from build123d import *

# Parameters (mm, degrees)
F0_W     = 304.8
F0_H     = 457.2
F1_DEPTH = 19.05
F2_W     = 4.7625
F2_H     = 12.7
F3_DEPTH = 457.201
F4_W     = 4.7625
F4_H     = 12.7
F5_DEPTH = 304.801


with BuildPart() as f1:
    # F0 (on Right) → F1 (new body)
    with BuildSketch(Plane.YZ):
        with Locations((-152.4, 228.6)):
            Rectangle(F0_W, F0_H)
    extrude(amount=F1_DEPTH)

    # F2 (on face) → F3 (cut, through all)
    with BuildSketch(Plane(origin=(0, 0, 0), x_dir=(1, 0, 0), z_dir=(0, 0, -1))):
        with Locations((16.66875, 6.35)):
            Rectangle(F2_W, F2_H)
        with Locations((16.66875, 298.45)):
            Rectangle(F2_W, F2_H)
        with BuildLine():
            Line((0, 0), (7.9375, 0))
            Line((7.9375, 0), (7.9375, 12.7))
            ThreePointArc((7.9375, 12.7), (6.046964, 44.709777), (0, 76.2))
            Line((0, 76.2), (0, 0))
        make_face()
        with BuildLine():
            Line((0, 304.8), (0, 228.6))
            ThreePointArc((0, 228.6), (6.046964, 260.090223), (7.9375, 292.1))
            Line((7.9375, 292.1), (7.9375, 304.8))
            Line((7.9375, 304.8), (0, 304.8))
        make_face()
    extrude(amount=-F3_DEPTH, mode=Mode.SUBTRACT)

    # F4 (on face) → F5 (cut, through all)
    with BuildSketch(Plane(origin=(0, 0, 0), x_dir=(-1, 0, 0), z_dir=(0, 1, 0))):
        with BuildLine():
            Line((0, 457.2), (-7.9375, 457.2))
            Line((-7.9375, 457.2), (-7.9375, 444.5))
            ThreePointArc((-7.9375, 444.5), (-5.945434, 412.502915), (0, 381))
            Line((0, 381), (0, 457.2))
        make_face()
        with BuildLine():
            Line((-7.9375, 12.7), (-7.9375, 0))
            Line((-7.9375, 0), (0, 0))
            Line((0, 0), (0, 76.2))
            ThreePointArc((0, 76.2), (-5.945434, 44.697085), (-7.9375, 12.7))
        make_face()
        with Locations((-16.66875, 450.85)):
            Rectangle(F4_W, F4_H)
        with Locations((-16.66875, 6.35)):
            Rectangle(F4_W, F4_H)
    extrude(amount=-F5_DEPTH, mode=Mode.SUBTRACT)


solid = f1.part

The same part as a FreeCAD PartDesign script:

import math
import FreeCAD as App
import Part
import Sketcher
from FreeCAD import Vector
Q = App.Units.Quantity

doc = App.newDocument("Part")
params = doc.addObject("Spreadsheet::Sheet", "Params")
for row, (alias, value) in enumerate([
    ("sketch1_width", "12 in"),
    ("sketch1_height", "18 in"),
    ("pad1_length", "0.75 in"),
    ("sketch2_height", "3 in"),
    ("sketch2_height2", "0.5 in"),
    ("sketch2_width", "0.1875 in"),
    ("sketch2_width2", "0.3125 in"),
    ("sketch3_height", "3 in"),
    ("sketch3_height2", "3 in"),
    ("sketch3_height3", "0.5 in"),
    ("sketch3_height4", "0.5 in"),
    ("sketch3_height5", "0.5 in"),
], start=1):
    params.set(f"A{row}", alias)
    params.set(f"B{row}", "=" + value)
    params.setAlias(f"B{row}", alias)

body = doc.addObject("PartDesign::Body", "Body")

# Sketch on YZ plane
sketch1 = body.newObject("Sketcher::SketchObject", "Sketch")
sketch1.AttachmentSupport = (doc.getObject("YZ_Plane"), [""])
sketch1.MapMode = "FlatFace"
sketch1.addGeometry([
    Part.LineSegment(Vector(-305, 457, 0), Vector(-305, 0, 0)),
    Part.LineSegment(Vector(-305, 0, 0), Vector(0, 0, 0)),
    Part.LineSegment(Vector(0, 0, 0), Vector(0, 457, 0)),
    Part.LineSegment(Vector(0, 457, 0), Vector(-305, 457, 0)),
], False)
sketch1.addConstraint([
    Sketcher.Constraint("Coincident", 0, 2, 1, 1),
    Sketcher.Constraint("Coincident", 1, 2, 2, 1),
    Sketcher.Constraint("Coincident", 2, 2, 3, 1),
    Sketcher.Constraint("Coincident", 3, 2, 0, 1),
    Sketcher.Constraint("Vertical", 0),
    Sketcher.Constraint("Horizontal", 1),
    Sketcher.Constraint("Vertical", 2),
    Sketcher.Constraint("Horizontal", 3),
    Sketcher.Constraint("Coincident", 1, 2, -1, 1),
    Sketcher.Constraint("DistanceX", 1, 1, 1, 2, Q("12 in")),
    Sketcher.Constraint("DistanceY", 0, 2, 0, 1, Q("18 in")),
])
sketch1.setExpression("Constraints[9]", "Params.sketch1_width")
sketch1.setExpression("Constraints[10]", "Params.sketch1_height")
pad1 = body.newObject("PartDesign::Pad", "Pad")
pad1.Profile = sketch1
pad1.setExpression("Length", "Params.pad1_length")

# Sketch on XY plane
sketch2 = body.newObject("Sketcher::SketchObject", "Sketch001")
sketch2.AttachmentSupport = (doc.getObject("XY_Plane"), [""])
sketch2.MapMode = "FlatFace"
sketch2.addGeometry([
    Part.LineSegment(Vector(14.3, -12.7, 0), Vector(14.3, 0, 0)),  # 0
    Part.LineSegment(Vector(14.3, 0, 0), Vector(19.1, 0, 0)),  # 1
    Part.LineSegment(Vector(19.1, 0, 0), Vector(19.1, -12.7, 0)),  # 2
    Part.LineSegment(Vector(19.1, -12.7, 0), Vector(14.3, -12.7, 0)),  # 3
    Part.LineSegment(Vector(14.3, -304.8, 0), Vector(14.3, -292.1, 0)),  # 4
    Part.LineSegment(Vector(14.3, -292.1, 0), Vector(19.1, -292.1, 0)),  # 5
    Part.LineSegment(Vector(19.1, -292.1, 0), Vector(19.1, -304.8, 0)),  # 6
    Part.LineSegment(Vector(19.1, -304.8, 0), Vector(14.3, -304.8, 0)),  # 7
    Part.LineSegment(Vector(0, 0, 0), Vector(7.9, 0, 0)),  # 8
    Part.LineSegment(Vector(7.9, 0, 0), Vector(7.9, -12.7, 0)),  # 9
    Part.ArcOfCircle(Part.Circle(Vector(-237.5, -14.3, 0), Vector(0, 0, 1), 245.5), math.radians(-14.61), math.radians(0.36)),  # 10
    Part.LineSegment(Vector(0, -76.2, 0), Vector(0, 0, 0)),  # 11
    Part.LineSegment(Vector(0, -304.8, 0), Vector(0, -228.6, 0)),  # 12
    Part.ArcOfCircle(Part.Circle(Vector(-237.5, -290.5, 0), Vector(0, 0, 1), 245.5), math.radians(-0.36), math.radians(14.61)),  # 13
    Part.LineSegment(Vector(7.9, -292.1, 0), Vector(7.9, -304.8, 0)),  # 14
    Part.LineSegment(Vector(7.9, -304.8, 0), Vector(0, -304.8, 0)),  # 15
], False)
sketch2.addConstraint([
    Sketcher.Constraint("Coincident", 0, 2, 1, 1),
    Sketcher.Constraint("Coincident", 1, 2, 2, 1),
    Sketcher.Constraint("Coincident", 2, 2, 3, 1),
    Sketcher.Constraint("Coincident", 3, 2, 0, 1),
    Sketcher.Constraint("Coincident", 4, 2, 5, 1),
    Sketcher.Constraint("Coincident", 5, 2, 6, 1),
    Sketcher.Constraint("Coincident", 6, 2, 7, 1),
    Sketcher.Constraint("Coincident", 7, 2, 4, 1),
    Sketcher.Constraint("Coincident", 8, 2, 9, 1),
    Sketcher.Constraint("Coincident", 9, 2, 10, 2),
    Sketcher.Constraint("Coincident", 10, 1, 11, 1),
    Sketcher.Constraint("Coincident", 11, 2, 8, 1),
    Sketcher.Constraint("Coincident", 12, 2, 13, 2),
    Sketcher.Constraint("Coincident", 13, 1, 14, 1),
    Sketcher.Constraint("Coincident", 14, 2, 15, 1),
    Sketcher.Constraint("Coincident", 15, 2, 12, 1),
    Sketcher.Constraint("Vertical", 0),
    Sketcher.Constraint("Horizontal", 1),
    Sketcher.Constraint("Vertical", 2),
    Sketcher.Constraint("Horizontal", 3),
    Sketcher.Constraint("Vertical", 4),
    Sketcher.Constraint("Horizontal", 5),
    Sketcher.Constraint("Vertical", 6),
    Sketcher.Constraint("Horizontal", 7),
    Sketcher.Constraint("Horizontal", 8),
    Sketcher.Constraint("Vertical", 9),
    Sketcher.Constraint("Vertical", 11),
    Sketcher.Constraint("Vertical", 12),
    Sketcher.Constraint("Vertical", 14),
    Sketcher.Constraint("Horizontal", 15),
    Sketcher.Constraint("Coincident", 11, 2, -1, 1),
    Sketcher.Constraint("Equal", 10, 13),
    Sketcher.Constraint("PointOnObject", 0, 2, -1),
    Sketcher.Constraint("PointOnObject", 12, 2, -2),
    Sketcher.Constraint("Horizontal", 3, 2, 9, 2),
    Sketcher.Constraint("Horizontal", 5, 2, 13, 1),
    Sketcher.Constraint("Horizontal", 7, 2, 14, 2),
    Sketcher.Constraint("Vertical", 10, 3, 13, 3),
    Sketcher.Constraint("Vertical", 3, 2, 4, 2),
    Sketcher.Constraint("Vertical", 2, 2, 5, 2),
    Sketcher.Constraint("Vertical", 9, 2, 13, 1),
    Sketcher.Constraint("Equal", 2, 4),
    Sketcher.Constraint("DistanceY", 11, 1, 11, 2, Q("3 in")),
    Sketcher.Constraint("DistanceY", 0, 1, 0, 2, Q("0.5 in")),
    Sketcher.Constraint("DistanceY", 6, 2, -1, 1, Q("12 in")),
    Sketcher.Constraint("DistanceX", 1, 1, 1, 2, Q("0.1875 in")),
    Sketcher.Constraint("DistanceX", 8, 1, 8, 2, Q("0.3125 in")),
    Sketcher.Constraint("DistanceX", -1, 1, 1, 2, Q("0.75 in")),
    Sketcher.Constraint("Radius", 10, 245.465585),
])
sketch2.setExpression("Constraints[42]", "Params.sketch2_height")
sketch2.setExpression("Constraints[43]", "Params.sketch2_height2")
sketch2.setExpression("Constraints[45]", "Params.sketch2_width")
sketch2.setExpression("Constraints[46]", "Params.sketch2_width2")
pocket1 = body.newObject("PartDesign::Pocket", "Pocket")
pocket1.Profile = sketch2
pocket1.Type = "ThroughAll"
pocket1.Reversed = True

# Sketch on XZ plane
sketch3 = body.newObject("Sketcher::SketchObject", "Sketch002")
sketch3.AttachmentSupport = (doc.getObject("XZ_Plane"), [""])
sketch3.MapMode = "FlatFace"
sketch3.addGeometry([
    Part.LineSegment(Vector(0, 457.2, 0), Vector(7.9375, 457.2, 0)),  # 0
    Part.LineSegment(Vector(7.9375, 457.2, 0), Vector(7.9375, 444.5, 0)),  # 1
    Part.ArcOfCircle(Part.Circle(Vector(-250.031194, 444.499993, 0), Vector(0, 0, 1), 257.968694), math.radians(-14.250034), math.radians(0.000002)),  # 2
    Part.LineSegment(Vector(0, 381, 0), Vector(0, 457.2, 0)),  # 3
    Part.LineSegment(Vector(7.9375, 12.7, 0), Vector(7.9375, 0, 0)),  # 4
    Part.LineSegment(Vector(7.9375, 0, 0), Vector(0, 0, 0)),  # 5
    Part.LineSegment(Vector(0, 0, 0), Vector(0, 76.2, 0)),  # 6
    Part.ArcOfCircle(Part.Circle(Vector(-250.031194, 12.700007, 0), Vector(0, 0, 1), 257.968694), math.radians(-0.000002), math.radians(14.250034)),  # 7
    Part.LineSegment(Vector(19.05, 457.2, 0), Vector(19.05, 444.5, 0)),  # 8
    Part.LineSegment(Vector(19.05, 444.5, 0), Vector(14.2875, 444.5, 0)),  # 9
    Part.LineSegment(Vector(14.2875, 444.5, 0), Vector(14.2875, 457.2, 0)),  # 10
    Part.LineSegment(Vector(14.2875, 457.2, 0), Vector(19.05, 457.2, 0)),  # 11
    Part.LineSegment(Vector(19.05, 12.7, 0), Vector(19.05, 0, 0)),  # 12
    Part.LineSegment(Vector(19.05, 0, 0), Vector(14.2875, 0, 0)),  # 13
    Part.LineSegment(Vector(14.2875, 0, 0), Vector(14.2875, 12.7, 0)),  # 14
    Part.LineSegment(Vector(14.2875, 12.7, 0), Vector(19.05, 12.7, 0)),  # 15
], False)
sketch3.addConstraint([
    Sketcher.Constraint("Coincident", 0, 2, 1, 1),
    Sketcher.Constraint("Coincident", 1, 2, 2, 2),
    Sketcher.Constraint("Coincident", 2, 1, 3, 1),
    Sketcher.Constraint("Coincident", 3, 2, 0, 1),
    Sketcher.Constraint("Coincident", 4, 2, 5, 1),
    Sketcher.Constraint("Coincident", 5, 2, 6, 1),
    Sketcher.Constraint("Coincident", 6, 2, 7, 2),
    Sketcher.Constraint("Coincident", 7, 1, 4, 1),
    Sketcher.Constraint("Coincident", 8, 2, 9, 1),
    Sketcher.Constraint("Coincident", 9, 2, 10, 1),
    Sketcher.Constraint("Coincident", 10, 2, 11, 1),
    Sketcher.Constraint("Coincident", 11, 2, 8, 1),
    Sketcher.Constraint("Coincident", 12, 2, 13, 1),
    Sketcher.Constraint("Coincident", 13, 2, 14, 1),
    Sketcher.Constraint("Coincident", 14, 2, 15, 1),
    Sketcher.Constraint("Coincident", 15, 2, 12, 1),
    Sketcher.Constraint("Horizontal", 0),
    Sketcher.Constraint("Vertical", 1),
    Sketcher.Constraint("Vertical", 3),
    Sketcher.Constraint("Vertical", 4),
    Sketcher.Constraint("Horizontal", 5),
    Sketcher.Constraint("Vertical", 6),
    Sketcher.Constraint("Vertical", 8),
    Sketcher.Constraint("Horizontal", 9),
    Sketcher.Constraint("Vertical", 10),
    Sketcher.Constraint("Horizontal", 11),
    Sketcher.Constraint("Vertical", 12),
    Sketcher.Constraint("Horizontal", 13),
    Sketcher.Constraint("Vertical", 14),
    Sketcher.Constraint("Horizontal", 15),
    Sketcher.Constraint("Coincident", 5, 2, -1, 1),
    Sketcher.Constraint("PointOnObject", 2, 1, -2),
    Sketcher.Constraint("PointOnObject", 12, 2, -1),
    Sketcher.Constraint("DistanceY", 3, 1, 3, 2, Q("3 in")),
    Sketcher.Constraint("DistanceY", 6, 1, 6, 2, Q("3 in")),
    Sketcher.Constraint("DistanceY", 1, 2, 1, 1, Q("0.5 in")),
    Sketcher.Constraint("DistanceY", 4, 2, 4, 1, Q("0.5 in")),
    Sketcher.Constraint("DistanceY", 8, 2, 8, 1, Q("0.5 in")),
    Sketcher.Constraint("DistanceY", 12, 2, 12, 1, Q("0.5 in")),
    Sketcher.Constraint("DistanceY", -1, 1, 0, 2, Q("18 in")),
    Sketcher.Constraint("DistanceY", -1, 1, 10, 2, Q("18 in")),
    Sketcher.Constraint("DistanceX", 0, 1, 0, 2, Q("0.3125 in")),
    Sketcher.Constraint("DistanceX", 5, 2, 5, 1, Q("0.3125 in")),
    Sketcher.Constraint("DistanceX", 9, 2, 9, 1, Q("0.1875 in")),
    Sketcher.Constraint("DistanceX", 13, 2, 13, 1, Q("0.1875 in")),
    Sketcher.Constraint("DistanceX", -1, 1, 8, 2, Q("0.75 in")),
    Sketcher.Constraint("DistanceX", -1, 1, 12, 2, Q("0.75 in")),
    Sketcher.Constraint("Radius", 2, 257.968694),
    Sketcher.Constraint("Radius", 7, 257.968694),
])
sketch3.setExpression("Constraints[33]", "Params.sketch3_height")
sketch3.setExpression("Constraints[34]", "Params.sketch3_height2")
sketch3.setExpression("Constraints[35]", "Params.sketch3_height3")
sketch3.setExpression("Constraints[36]", "Params.sketch3_height4")
sketch3.setExpression("Constraints[37]", "Params.sketch3_height5")
pocket2 = body.newObject("PartDesign::Pocket", "Pocket001")
pocket2.Profile = sketch3
pocket2.Type = "ThroughAll"
pocket2.Reversed = True

doc.recompute()
